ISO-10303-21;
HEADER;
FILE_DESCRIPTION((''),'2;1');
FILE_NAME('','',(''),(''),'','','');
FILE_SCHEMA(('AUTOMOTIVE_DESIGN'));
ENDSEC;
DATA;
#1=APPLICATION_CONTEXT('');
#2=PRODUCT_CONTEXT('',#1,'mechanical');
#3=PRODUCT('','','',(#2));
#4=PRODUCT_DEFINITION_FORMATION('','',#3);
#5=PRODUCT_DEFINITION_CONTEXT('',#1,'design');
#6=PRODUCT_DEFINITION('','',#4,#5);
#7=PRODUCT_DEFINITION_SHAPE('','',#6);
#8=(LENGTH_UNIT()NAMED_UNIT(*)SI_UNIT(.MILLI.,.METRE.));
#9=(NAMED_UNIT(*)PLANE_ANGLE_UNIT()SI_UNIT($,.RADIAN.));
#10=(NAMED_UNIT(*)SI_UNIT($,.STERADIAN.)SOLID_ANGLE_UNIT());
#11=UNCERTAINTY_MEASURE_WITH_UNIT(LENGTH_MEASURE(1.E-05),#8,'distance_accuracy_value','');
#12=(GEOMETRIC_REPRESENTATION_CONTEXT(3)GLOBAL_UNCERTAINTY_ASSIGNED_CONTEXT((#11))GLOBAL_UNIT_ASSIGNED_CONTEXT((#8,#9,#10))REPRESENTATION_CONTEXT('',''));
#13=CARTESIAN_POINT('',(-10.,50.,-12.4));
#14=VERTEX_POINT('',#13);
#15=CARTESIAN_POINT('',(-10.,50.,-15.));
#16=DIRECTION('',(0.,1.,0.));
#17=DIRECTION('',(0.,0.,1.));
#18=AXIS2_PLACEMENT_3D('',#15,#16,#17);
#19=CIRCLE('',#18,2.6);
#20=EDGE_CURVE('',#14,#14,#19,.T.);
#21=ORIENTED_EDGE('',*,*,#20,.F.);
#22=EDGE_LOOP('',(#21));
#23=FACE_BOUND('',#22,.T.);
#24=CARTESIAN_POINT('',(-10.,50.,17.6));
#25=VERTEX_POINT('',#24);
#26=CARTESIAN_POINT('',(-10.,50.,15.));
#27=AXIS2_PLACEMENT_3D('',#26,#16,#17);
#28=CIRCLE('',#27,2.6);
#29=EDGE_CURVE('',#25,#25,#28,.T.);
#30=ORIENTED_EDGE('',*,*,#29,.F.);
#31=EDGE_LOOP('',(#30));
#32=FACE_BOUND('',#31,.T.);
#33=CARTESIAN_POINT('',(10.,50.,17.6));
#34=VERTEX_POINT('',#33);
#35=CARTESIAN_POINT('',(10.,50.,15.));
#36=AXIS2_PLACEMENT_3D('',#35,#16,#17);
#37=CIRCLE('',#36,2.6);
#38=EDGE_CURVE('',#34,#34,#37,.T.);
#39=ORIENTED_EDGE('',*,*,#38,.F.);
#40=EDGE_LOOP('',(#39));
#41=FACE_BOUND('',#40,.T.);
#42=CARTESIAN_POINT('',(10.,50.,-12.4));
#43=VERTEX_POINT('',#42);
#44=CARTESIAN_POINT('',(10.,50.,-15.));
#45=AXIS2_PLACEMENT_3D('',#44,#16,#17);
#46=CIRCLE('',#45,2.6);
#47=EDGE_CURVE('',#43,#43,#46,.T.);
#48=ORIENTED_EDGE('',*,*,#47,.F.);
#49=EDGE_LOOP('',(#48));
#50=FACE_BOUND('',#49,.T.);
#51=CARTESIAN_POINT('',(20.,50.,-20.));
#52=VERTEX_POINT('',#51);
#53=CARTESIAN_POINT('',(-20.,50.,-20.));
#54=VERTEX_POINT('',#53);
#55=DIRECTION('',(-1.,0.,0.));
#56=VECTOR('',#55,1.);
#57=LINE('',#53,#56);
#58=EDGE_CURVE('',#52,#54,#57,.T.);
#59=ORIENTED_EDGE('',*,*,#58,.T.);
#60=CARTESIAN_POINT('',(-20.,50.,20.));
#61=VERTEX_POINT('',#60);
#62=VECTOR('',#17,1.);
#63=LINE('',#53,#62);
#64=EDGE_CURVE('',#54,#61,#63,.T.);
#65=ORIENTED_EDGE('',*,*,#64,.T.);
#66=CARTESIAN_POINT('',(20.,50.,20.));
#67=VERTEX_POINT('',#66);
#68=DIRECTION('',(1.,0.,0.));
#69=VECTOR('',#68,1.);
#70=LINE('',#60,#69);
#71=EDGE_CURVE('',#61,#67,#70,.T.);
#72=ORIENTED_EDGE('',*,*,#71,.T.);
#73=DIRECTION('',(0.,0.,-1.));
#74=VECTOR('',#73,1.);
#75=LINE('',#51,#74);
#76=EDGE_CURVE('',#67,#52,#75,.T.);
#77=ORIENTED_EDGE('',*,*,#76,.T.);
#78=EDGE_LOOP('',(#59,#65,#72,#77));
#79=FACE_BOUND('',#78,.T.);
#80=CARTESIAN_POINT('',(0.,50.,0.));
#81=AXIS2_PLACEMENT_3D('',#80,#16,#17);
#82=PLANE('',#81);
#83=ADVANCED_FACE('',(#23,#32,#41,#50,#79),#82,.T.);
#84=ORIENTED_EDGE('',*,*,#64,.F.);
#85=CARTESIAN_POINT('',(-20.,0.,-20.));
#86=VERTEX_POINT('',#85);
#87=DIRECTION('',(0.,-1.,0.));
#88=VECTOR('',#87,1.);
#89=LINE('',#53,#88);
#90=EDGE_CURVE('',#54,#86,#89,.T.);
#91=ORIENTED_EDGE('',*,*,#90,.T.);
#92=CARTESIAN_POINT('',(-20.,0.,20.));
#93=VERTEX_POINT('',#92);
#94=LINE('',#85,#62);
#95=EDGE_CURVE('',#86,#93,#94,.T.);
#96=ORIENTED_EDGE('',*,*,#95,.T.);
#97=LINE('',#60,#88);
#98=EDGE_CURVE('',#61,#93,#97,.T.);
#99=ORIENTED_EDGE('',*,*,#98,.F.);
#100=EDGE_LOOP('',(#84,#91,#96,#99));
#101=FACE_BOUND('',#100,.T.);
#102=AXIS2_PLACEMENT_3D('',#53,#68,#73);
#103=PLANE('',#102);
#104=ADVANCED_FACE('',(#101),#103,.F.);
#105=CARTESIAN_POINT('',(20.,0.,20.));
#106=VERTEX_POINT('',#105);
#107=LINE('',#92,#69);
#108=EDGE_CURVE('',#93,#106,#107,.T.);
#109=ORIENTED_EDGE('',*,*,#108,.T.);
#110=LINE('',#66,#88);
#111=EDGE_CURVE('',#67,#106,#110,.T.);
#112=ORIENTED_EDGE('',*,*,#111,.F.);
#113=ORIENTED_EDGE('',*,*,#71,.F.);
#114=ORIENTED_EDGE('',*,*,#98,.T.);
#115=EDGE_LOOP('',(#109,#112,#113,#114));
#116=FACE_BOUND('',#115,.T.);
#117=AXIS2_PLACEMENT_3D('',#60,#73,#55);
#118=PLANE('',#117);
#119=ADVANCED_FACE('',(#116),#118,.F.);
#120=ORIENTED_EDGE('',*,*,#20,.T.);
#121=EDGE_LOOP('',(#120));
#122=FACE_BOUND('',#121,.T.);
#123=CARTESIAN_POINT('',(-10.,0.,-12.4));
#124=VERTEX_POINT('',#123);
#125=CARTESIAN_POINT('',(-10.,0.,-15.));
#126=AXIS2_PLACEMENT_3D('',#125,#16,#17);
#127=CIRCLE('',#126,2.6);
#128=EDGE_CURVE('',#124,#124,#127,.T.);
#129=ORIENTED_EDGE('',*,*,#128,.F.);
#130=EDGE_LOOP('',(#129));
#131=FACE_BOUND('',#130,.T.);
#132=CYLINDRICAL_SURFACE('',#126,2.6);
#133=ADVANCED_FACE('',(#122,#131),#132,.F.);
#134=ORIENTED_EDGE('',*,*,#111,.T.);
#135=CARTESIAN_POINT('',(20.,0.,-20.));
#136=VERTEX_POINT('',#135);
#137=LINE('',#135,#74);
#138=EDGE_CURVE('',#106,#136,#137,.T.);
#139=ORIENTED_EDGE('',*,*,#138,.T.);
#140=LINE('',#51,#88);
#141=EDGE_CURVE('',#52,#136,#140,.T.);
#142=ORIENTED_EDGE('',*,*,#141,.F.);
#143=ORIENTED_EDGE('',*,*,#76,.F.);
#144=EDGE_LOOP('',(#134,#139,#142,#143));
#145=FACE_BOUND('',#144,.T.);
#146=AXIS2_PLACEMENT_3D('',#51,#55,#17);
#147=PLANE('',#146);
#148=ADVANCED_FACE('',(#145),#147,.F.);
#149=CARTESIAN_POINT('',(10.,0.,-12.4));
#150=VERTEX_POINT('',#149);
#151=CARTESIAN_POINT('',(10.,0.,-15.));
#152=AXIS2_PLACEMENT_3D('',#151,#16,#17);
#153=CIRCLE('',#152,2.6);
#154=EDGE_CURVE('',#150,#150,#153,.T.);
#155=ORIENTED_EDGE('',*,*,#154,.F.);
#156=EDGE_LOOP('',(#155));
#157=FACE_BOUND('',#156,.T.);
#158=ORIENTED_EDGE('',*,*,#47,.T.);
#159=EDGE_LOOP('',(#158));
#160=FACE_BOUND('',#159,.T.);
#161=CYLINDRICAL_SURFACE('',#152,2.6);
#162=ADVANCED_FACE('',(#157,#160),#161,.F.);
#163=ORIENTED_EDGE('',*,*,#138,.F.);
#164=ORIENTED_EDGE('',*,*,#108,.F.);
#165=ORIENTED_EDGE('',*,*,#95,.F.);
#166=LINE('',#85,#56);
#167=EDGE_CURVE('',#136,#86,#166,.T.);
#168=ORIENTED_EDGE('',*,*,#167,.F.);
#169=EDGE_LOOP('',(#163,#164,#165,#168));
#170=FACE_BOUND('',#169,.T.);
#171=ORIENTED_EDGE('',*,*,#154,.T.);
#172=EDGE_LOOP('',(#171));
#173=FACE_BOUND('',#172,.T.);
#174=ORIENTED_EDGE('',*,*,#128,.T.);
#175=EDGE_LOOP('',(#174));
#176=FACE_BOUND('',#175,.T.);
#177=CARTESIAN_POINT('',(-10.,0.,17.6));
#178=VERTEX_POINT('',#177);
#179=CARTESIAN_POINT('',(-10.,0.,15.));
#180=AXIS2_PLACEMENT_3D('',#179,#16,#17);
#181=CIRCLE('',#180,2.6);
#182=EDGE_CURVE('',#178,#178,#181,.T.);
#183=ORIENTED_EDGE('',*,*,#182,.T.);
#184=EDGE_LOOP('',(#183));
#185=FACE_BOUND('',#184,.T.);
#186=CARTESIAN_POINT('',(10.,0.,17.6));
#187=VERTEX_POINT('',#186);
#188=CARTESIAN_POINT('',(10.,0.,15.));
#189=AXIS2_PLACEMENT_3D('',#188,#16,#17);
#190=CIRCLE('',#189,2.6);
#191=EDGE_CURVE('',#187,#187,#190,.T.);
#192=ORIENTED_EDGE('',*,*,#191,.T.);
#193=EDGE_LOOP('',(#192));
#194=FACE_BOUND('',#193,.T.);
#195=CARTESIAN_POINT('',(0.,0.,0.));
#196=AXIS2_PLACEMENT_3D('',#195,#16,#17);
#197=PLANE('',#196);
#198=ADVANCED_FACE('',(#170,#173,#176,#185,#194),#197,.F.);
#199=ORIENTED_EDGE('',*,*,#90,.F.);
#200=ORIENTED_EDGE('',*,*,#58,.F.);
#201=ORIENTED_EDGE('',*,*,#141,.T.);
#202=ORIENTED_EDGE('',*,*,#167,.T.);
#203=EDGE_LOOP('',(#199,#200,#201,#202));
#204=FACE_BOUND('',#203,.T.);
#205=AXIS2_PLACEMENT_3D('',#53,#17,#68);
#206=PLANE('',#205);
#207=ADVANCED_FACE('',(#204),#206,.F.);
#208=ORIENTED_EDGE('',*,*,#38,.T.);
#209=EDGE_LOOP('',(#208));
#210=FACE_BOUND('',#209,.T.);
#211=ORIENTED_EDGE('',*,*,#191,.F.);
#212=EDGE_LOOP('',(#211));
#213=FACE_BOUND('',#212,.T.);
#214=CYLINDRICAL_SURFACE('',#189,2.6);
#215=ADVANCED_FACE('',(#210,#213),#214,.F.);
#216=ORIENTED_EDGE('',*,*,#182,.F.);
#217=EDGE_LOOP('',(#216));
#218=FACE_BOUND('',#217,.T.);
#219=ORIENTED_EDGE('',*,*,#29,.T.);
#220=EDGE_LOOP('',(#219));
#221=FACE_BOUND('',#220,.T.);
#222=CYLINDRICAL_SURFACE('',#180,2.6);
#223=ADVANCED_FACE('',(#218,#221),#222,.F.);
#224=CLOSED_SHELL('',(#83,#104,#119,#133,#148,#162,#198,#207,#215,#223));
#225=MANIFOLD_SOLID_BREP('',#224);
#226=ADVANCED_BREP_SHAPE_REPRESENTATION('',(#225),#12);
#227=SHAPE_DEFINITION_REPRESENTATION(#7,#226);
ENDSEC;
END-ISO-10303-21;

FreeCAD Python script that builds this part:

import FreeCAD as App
import Part
import Sketcher

V = App.Vector


def add_polygon(sketch, points):
    """Adds a closed chain of lines whose ends are joined by coincident constraints."""
    first, n = sketch.GeometryCount, len(points)
    for a, b in zip(points, points[1:] + points[:1]):
        sketch.addGeometry(Part.LineSegment(App.Vector(*a, 0), App.Vector(*b, 0)), False)
    for i in range(n):
        sketch.addConstraint(Sketcher.Constraint("Coincident", first + i, 2, first + (i + 1) % n, 1))

doc = App.newDocument("Part")
body = doc.addObject("PartDesign::Body", "Body")

# Sketch on XZ plane
sketch1 = body.newObject("Sketcher::SketchObject", "Sketch")
sketch1.AttachmentSupport = (doc.getObject("XZ_Plane"), [""])
sketch1.MapMode = "FlatFace"
add_polygon(sketch1, [(-20, -20), (-20, 20), (20, 20), (20, -20)])  # lines 0-3
sketch1.addConstraint(Sketcher.Constraint("Vertical", 0))
sketch1.addConstraint(Sketcher.Constraint("Horizontal", 1))
sketch1.addConstraint(Sketcher.Constraint("Vertical", 2))
sketch1.addConstraint(Sketcher.Constraint("Horizontal", 3))
sketch1.addConstraint(Sketcher.Constraint("Symmetric", 0, 2, 2, 2, -1, 1))
sketch1.addConstraint(Sketcher.Constraint("Equal", 3, 0))
sketch1.addConstraint(Sketcher.Constraint("DistanceX", 1, 1, 1, 2, 40.0))
pad1 = body.newObject("PartDesign::Pad", "Pad")
pad1.Profile = sketch1
pad1.Length = 50
pad1.Reversed = True

# Sketch on XZ plane
sketch2 = body.newObject("Sketcher::SketchObject", "Sketch001")
sketch2.AttachmentSupport = (doc.getObject("XZ_Plane"), [""])
sketch2.MapMode = "FlatFace"
sketch2.AttachmentOffset = App.Placement(V(0, 0, -50), App.Rotation())
sketch2.addGeometry(Part.Circle(V(10, -15, 0), V(0, 0, 1), 2.6), False)
sketch2.addGeometry(Part.Circle(V(-10, -15, 0), V(0, 0, 1), 2.6), False)
sketch2.addGeometry(Part.Circle(V(-10, 15, 0), V(0, 0, 1), 2.6), False)
sketch2.addGeometry(Part.Circle(V(10, 15, 0), V(0, 0, 1), 2.6), False)
sketch2.addConstraint(Sketcher.Constraint("Equal", 0, 1))
sketch2.addConstraint(Sketcher.Constraint("Equal", 1, 2))
sketch2.addConstraint(Sketcher.Constraint("Equal", 2, 3))
sketch2.addConstraint(Sketcher.Constraint("Symmetric", 0, 3, 2, 3, -1, 1))
sketch2.addConstraint(Sketcher.Constraint("Symmetric", 1, 3, 3, 3, -1, 1))
sketch2.addConstraint(Sketcher.Constraint("Symmetric", 0, 3, 1, 3, -2))
sketch2.addConstraint(Sketcher.Constraint("Diameter", 0, 5.2))
sketch2.addConstraint(Sketcher.Constraint("DistanceX", -1, 1, 0, 3, 10.0))
sketch2.addConstraint(Sketcher.Constraint("DistanceY", 0, 3, -1, 1, 15.0))
pocket1 = body.newObject("PartDesign::Pocket", "Pocket")
pocket1.Profile = sketch2
pocket1.Type = "ThroughAll"
pocket1.Reversed = True

doc.recompute()
